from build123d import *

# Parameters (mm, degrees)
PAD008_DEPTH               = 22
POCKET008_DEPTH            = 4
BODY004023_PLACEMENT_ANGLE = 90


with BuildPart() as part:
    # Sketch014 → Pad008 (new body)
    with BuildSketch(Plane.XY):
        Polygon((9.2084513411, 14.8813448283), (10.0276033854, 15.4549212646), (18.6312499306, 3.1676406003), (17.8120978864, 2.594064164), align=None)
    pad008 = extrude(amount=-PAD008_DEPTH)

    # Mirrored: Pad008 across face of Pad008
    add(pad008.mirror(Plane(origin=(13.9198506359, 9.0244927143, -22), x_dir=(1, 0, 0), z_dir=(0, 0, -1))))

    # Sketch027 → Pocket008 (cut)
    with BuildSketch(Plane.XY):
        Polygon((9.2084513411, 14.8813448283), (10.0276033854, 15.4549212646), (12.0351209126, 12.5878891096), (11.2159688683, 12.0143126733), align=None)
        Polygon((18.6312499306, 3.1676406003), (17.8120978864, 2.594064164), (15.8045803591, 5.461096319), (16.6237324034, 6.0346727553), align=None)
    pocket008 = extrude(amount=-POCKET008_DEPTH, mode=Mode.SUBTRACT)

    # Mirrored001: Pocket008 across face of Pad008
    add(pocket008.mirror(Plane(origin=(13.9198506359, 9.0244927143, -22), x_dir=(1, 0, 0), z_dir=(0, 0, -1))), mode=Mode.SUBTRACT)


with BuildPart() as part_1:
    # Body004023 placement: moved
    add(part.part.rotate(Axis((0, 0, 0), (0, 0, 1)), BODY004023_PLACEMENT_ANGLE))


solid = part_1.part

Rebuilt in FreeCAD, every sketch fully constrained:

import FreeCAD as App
import Part
import Sketcher
Q = App.Units.Quantity


def add_polygon(sketch, points):
    """Adds a closed chain of lines whose ends are joined by coincident constraints."""
    first, n = sketch.GeometryCount, len(points)
    for a, b in zip(points, points[1:] + points[:1]):
        sketch.addGeometry(Part.LineSegment(App.Vector(*a, 0), App.Vector(*b, 0)), False)
    for i in range(n):
        sketch.addConstraint(Sketcher.Constraint("Coincident", first + i, 2, first + (i + 1) % n, 1))

doc = App.newDocument("Part")
params = doc.addObject("Spreadsheet::Sheet", "Params")
for row, (alias, value) in enumerate([
    ("sketch1_length", "1 mm"),
    ("sketch1_length2", "15 mm"),
    ("pad1_length", "22 mm"),
    ("sketch2_length", "1 mm"),
    ("sketch2_length2", "3.5 mm"),
    ("pocket1_length", "4 mm"),
], start=1):
    params.set(f"A{row}", alias)
    params.set(f"B{row}", "=" + value)
    params.setAlias(f"B{row}", alias)

body = doc.addObject("PartDesign::Body", "Body")

sketch1 = body.newObject("Sketcher::SketchObject", "Sketch")
sketch1.AttachmentSupport = (doc.getObject("XY_Plane"), [""])
sketch1.MapMode = "FlatFace"
add_polygon(sketch1, [(10.027603, 15.454921), (9.208451, 14.881345), (17.812098, 2.594064), (18.63125, 3.167641)])
sketch1.addConstraint(Sketcher.Constraint("Perpendicular", 0, 1))
sketch1.addConstraint(Sketcher.Constraint("Perpendicular", 1, 2))
sketch1.addConstraint(Sketcher.Constraint("Perpendicular", 2, 3))
sketch1.addConstraint(Sketcher.Constraint("Angle", 0, Q("-145 deg")))
sketch1.addConstraint(Sketcher.Constraint("Distance", 0, 1.0))
sketch1.addConstraint(Sketcher.Constraint("Distance", 1, 15.0))
sketch1.addConstraint(Sketcher.Constraint("DistanceX", -1, 1, 0, 2, 9.208451))
sketch1.addConstraint(Sketcher.Constraint("DistanceY", -1, 1, 2, 2, 3.167641))
sketch1.setExpression("Constraints[8]", "Params.sketch1_length")
sketch1.setExpression("Constraints[9]", "Params.sketch1_length2")
pad1 = body.newObject("PartDesign::Pad", "Pad")
pad1.Profile = sketch1
pad1.setExpression("Length", "Params.pad1_length")
pad1.Reversed = True
doc.recompute()

datumplane = body.newObject("PartDesign::Plane", "DatumPlane")
datumplane.AttachmentSupport = (doc.getObject("XY_Plane"), [""])
datumplane.MapMode = "FlatFace"
datumplane.AttachmentOffset = App.Placement(App.Vector(0, 0, -22), App.Rotation())
mirrored = body.newObject("PartDesign::Mirrored", "Mirrored")
mirrored.Originals = [pad1]
mirrored.MirrorPlane = (datumplane, [""])
body.Tip = mirrored

sketch2 = body.newObject("Sketcher::SketchObject", "Sketch001")
sketch2.AttachmentSupport = (doc.getObject("XY_Plane"), [""])
sketch2.MapMode = "FlatFace"
add_polygon(sketch2, [(10.027603, 15.454921), (9.208451, 14.881345), (11.215969, 12.014313), (12.035121, 12.587889)])
add_polygon(sketch2, [(17.812098, 2.594064), (18.63125, 3.167641), (16.623732, 6.034673), (15.80458, 5.461096)])
sketch2.addConstraint(Sketcher.Constraint("Perpendicular", 0, 1))
sketch2.addConstraint(Sketcher.Constraint("Perpendicular", 1, 2))
sketch2.addConstraint(Sketcher.Constraint("Perpendicular", 2, 3))
sketch2.addConstraint(Sketcher.Constraint("Perpendicular", 3, 4))
sketch2.addConstraint(Sketcher.Constraint("Perpendicular", 4, 5))
sketch2.addConstraint(Sketcher.Constraint("Perpendicular", 5, 6))
sketch2.addConstraint(Sketcher.Constraint("Perpendicular", 6, 7))
sketch2.addConstraint(Sketcher.Constraint("Equal", 2, 4))
sketch2.addConstraint(Sketcher.Constraint("Equal", 3, 5))
sketch2.addConstraint(Sketcher.Constraint("Angle", 0, Q("-145 deg")))
sketch2.addConstraint(Sketcher.Constraint("Distance", 0, 1.0))
sketch2.addConstraint(Sketcher.Constraint("Distance", 1, 3.5))
sketch2.addConstraint(Sketcher.Constraint("DistanceX", 0, 2, 4, 2, 9.422799))
sketch2.addConstraint(Sketcher.Constraint("DistanceX", -1, 1, 0, 2, 9.208451))
sketch2.addConstraint(Sketcher.Constraint("DistanceY", -1, 1, 2, 2, 12.587889))
sketch2.addConstraint(Sketcher.Constraint("DistanceY", -1, 1, 4, 2, 3.167641))
sketch2.setExpression("Constraints[18]", "Params.sketch2_length")
sketch2.setExpression("Constraints[19]", "Params.sketch2_length2")
pocket1 = body.newObject("PartDesign::Pocket", "Pocket")
pocket1.Profile = sketch2
pocket1.setExpression("Length", "Params.pocket1_length")
doc.recompute()

datumplane2 = body.newObject("PartDesign::Plane", "DatumPlane001")
datumplane2.AttachmentSupport = (doc.getObject("XY_Plane"), [""])
datumplane2.MapMode = "FlatFace"
datumplane2.AttachmentOffset = App.Placement(App.Vector(0, 0, -22), App.Rotation())
mirrored2 = body.newObject("PartDesign::Mirrored", "Mirrored001")
mirrored2.Originals = [pocket1]
mirrored2.MirrorPlane = (datumplane2, [""])
body.Tip = mirrored2
body2 = doc.addObject("PartDesign::Body", "Body001")
doc.recompute()

body.Placement = App.Placement(App.Vector(0, 0, 0), App.Rotation(App.Vector(0, 0, 1), 90))
boolean = body2.newObject("PartDesign::Boolean", "Boolean")
boolean.Type = "Fuse"
boolean.addObjects([body])

doc.recompute()
